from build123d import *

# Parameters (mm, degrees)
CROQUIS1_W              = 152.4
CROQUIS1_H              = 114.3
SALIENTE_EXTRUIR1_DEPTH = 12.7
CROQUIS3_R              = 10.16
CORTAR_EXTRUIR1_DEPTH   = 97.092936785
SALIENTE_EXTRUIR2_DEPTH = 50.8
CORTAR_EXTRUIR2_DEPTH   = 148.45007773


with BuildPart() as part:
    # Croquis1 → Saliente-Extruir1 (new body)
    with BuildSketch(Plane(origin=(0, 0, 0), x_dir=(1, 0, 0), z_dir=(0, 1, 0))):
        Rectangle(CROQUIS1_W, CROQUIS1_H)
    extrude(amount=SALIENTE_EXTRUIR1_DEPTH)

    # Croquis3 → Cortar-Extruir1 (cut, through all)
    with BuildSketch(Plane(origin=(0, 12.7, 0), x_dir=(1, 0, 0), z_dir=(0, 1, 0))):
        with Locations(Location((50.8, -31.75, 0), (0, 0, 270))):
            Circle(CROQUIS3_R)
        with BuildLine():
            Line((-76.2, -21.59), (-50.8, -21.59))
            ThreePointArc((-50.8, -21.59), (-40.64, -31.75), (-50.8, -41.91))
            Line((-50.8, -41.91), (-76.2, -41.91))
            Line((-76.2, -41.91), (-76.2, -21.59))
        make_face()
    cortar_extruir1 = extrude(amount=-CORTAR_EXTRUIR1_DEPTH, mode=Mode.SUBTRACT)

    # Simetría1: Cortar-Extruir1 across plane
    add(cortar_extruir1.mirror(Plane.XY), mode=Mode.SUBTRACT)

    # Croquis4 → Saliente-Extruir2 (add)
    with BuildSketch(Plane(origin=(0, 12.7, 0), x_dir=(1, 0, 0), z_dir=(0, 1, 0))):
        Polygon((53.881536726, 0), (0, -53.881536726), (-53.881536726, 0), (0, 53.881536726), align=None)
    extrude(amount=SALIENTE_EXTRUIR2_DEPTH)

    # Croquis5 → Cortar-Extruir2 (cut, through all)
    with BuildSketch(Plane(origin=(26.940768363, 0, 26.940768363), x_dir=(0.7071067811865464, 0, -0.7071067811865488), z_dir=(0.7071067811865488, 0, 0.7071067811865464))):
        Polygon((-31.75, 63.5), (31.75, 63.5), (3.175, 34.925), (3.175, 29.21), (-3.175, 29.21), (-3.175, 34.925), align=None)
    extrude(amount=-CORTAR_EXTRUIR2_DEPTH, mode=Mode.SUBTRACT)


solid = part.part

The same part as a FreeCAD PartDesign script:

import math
import FreeCAD as App
import Part
import Sketcher

V = App.Vector
Q = App.Units.Quantity

doc = App.newDocument("Part")
body = doc.addObject("PartDesign::Body", "Body")

# Sketch on XZ plane
sketch1 = body.newObject("Sketcher::SketchObject", "Sketch")
sketch1.AttachmentSupport = (doc.getObject("XZ_Plane"), [""])
sketch1.MapMode = "FlatFace"
sketch1.addGeometry([
    Part.LineSegment(V(-76.2, -57.15, 0), V(-76.2, 57.15, 0)),
    Part.LineSegment(V(-76.2, 57.15, 0), V(76.2, 57.15, 0)),
    Part.LineSegment(V(76.2, 57.15, 0), V(76.2, -57.15, 0)),
    Part.LineSegment(V(76.2, -57.15, 0), V(-76.2, -57.15, 0)),
], False)
sketch1.addConstraint([
    Sketcher.Constraint("Coincident", 0, 2, 1, 1),
    Sketcher.Constraint("Coincident", 1, 2, 2, 1),
    Sketcher.Constraint("Coincident", 2, 2, 3, 1),
    Sketcher.Constraint("Coincident", 3, 2, 0, 1),
    Sketcher.Constraint("Vertical", 0),
    Sketcher.Constraint("Horizontal", 1),
    Sketcher.Constraint("Vertical", 2),
    Sketcher.Constraint("Horizontal", 3),
    Sketcher.Constraint("Symmetric", 0, 2, 2, 2, -1, 1),
    Sketcher.Constraint("DistanceX", 1, 1, 1, 2, Q("6 in")),
    Sketcher.Constraint("DistanceY", 0, 1, 0, 2, Q("4.5 in")),
])
pad1 = body.newObject("PartDesign::Pad", "Pad")
pad1.Profile = sketch1
pad1.Length = Q("0.5 in")
pad1.Reversed = True

# Sketch on XZ plane
sketch2 = body.newObject("Sketcher::SketchObject", "Sketch001")
sketch2.AttachmentSupport = (doc.getObject("XZ_Plane"), [""])
sketch2.MapMode = "FlatFace"
sketch2.AttachmentOffset = App.Placement(V(0, 0, -0.5 * 25.4), App.Rotation())
sketch2.addGeometry([
    Part.Circle(V(50.8, 31.75, 0), V(0, 0, 1), 10.16),  # 0
    Part.LineSegment(V(-50.8, 21.59, 0), V(-76.2, 21.59, 0)),  # 1
    Part.LineSegment(V(-76.2, 21.59, 0), V(-76.2, 41.91, 0)),  # 2
    Part.LineSegment(V(-76.2, 41.91, 0), V(-50.8, 41.91, 0)),  # 3
    Part.ArcOfCircle(Part.Circle(V(-50.8, 31.75, 0), V(0, 0, 1), 10.16), math.radians(-90), math.radians(90)),  # 4
], False)
sketch2.addConstraint([
    Sketcher.Constraint("Coincident", 1, 2, 2, 1),
    Sketcher.Constraint("Coincident", 2, 2, 3, 1),
    Sketcher.Constraint("Tangent", 3, 2, 4, 2),
    Sketcher.Constraint("Tangent", 4, 1, 1, 1),
    Sketcher.Constraint("Horizontal", 1),
    Sketcher.Constraint("Vertical", 2),
    Sketcher.Constraint("Horizontal", 3),
    Sketcher.Constraint("Equal", 0, 4),
    Sketcher.Constraint("Symmetric", 0, 3, 4, 3, -2),
    Sketcher.Constraint("Diameter", 0, Q("0.8 in")),
    Sketcher.Constraint("DistanceX", 1, 2, 1, 1, Q("1 in")),
    Sketcher.Constraint("DistanceX", -1, 1, 0, 3, Q("2 in")),
    Sketcher.Constraint("DistanceY", -1, 1, 0, 3, Q("1.25 in")),
])
pocket1 = body.newObject("PartDesign::Pocket", "Pocket")
pocket1.Profile = sketch2
pocket1.Type = "ThroughAll"
pocket1.Reversed = True
doc.recompute()

mirrored = body.newObject("PartDesign::Mirrored", "Mirrored")
mirrored.Originals = [pocket1]
mirrored.MirrorPlane = (doc.getObject("XY_Plane"), [""])
body.Tip = mirrored

# Sketch on XZ plane
sketch3 = body.newObject("Sketcher::SketchObject", "Sketch002")
sketch3.AttachmentSupport = (doc.getObject("XZ_Plane"), [""])
sketch3.MapMode = "FlatFace"
sketch3.AttachmentOffset = App.Placement(V(0, 0, -0.5 * 25.4), App.Rotation())
sketch3.addGeometry([
    Part.LineSegment(V(0, 53.881537, 0), V(53.881537, 0, 0)),
    Part.LineSegment(V(53.881537, 0, 0), V(0, -53.881537, 0)),
    Part.LineSegment(V(0, -53.881537, 0), V(-53.881537, 0, 0)),
    Part.LineSegment(V(-53.881537, 0, 0), V(0, 53.881537, 0)),
], False)
sketch3.addConstraint([
    Sketcher.Constraint("Coincident", 0, 2, 1, 1),
    Sketcher.Constraint("Coincident", 1, 2, 2, 1),
    Sketcher.Constraint("Coincident", 2, 2, 3, 1),
    Sketcher.Constraint("Coincident", 3, 2, 0, 1),
    Sketcher.Constraint("Symmetric", 0, 2, 2, 2, -1, 1),
    Sketcher.Constraint("Symmetric", 1, 2, 3, 2, -1, 1),
    Sketcher.Constraint("PointOnObject", 0, 2, -1),
    Sketcher.Constraint("PointOnObject", 1, 2, -2),
    Sketcher.Constraint("Perpendicular", 0, 1),
    Sketcher.Constraint("Distance", 0, Q("3 in")),
])
pad2 = body.newObject("PartDesign::Pad", "Pad001")
pad2.Profile = sketch3
pad2.Length = Q("2 in")
pad2.Reversed = True

# Sketch on an angled plane
sketch4 = body.newObject("Sketcher::SketchObject", "Sketch003")
sketch4.Placement = App.Placement(V(26.940768, 0, 26.940768), App.Rotation(V(0.707106781, 0, -0.707106781), V(0, 0.999999999, 0), V(0.707106781, 0, 0.707106781), "ZXY"))
sketch4.addGeometry([
    Part.LineSegment(V(31.75, 63.5, 0), V(-31.75, 63.5, 0)),  # 0
    Part.LineSegment(V(-31.75, 63.5, 0), V(-3.175, 34.925, 0)),  # 1
    Part.LineSegment(V(-3.175, 34.925, 0), V(-3.175, 29.21, 0)),  # 2
    Part.LineSegment(V(-3.175, 29.21, 0), V(3.175, 29.21, 0)),  # 3
    Part.LineSegment(V(3.175, 29.21, 0), V(3.175, 34.925, 0)),  # 4
    Part.LineSegment(V(3.175, 34.925, 0), V(31.75, 63.5, 0)),  # 5
], False)
sketch4.addConstraint([
    Sketcher.Constraint("Coincident", 0, 2, 1, 1),
    Sketcher.Constraint("Coincident", 1, 2, 2, 1),
    Sketcher.Constraint("Coincident", 2, 2, 3, 1),
    Sketcher.Constraint("Coincident", 3, 2, 4, 1),
    Sketcher.Constraint("Coincident", 4, 2, 5, 1),
    Sketcher.Constraint("Coincident", 5, 2, 0, 1),
    Sketcher.Constraint("Horizontal", 0),
    Sketcher.Constraint("Vertical", 2),
    Sketcher.Constraint("Horizontal", 3),
    Sketcher.Constraint("Vertical", 4),
    Sketcher.Constraint("Symmetric", 1, 2, 4, 2, -2),
    Sketcher.Constraint("Perpendicular", 1, 5),
    Sketcher.Constraint("Equal", 1, 5),
    Sketcher.Constraint("DistanceX", 0, 2, 0, 1, Q("2.5 in")),
    Sketcher.Constraint("DistanceX", 3, 1, 3, 2, Q("0.25 in")),
    Sketcher.Constraint("DistanceY", -1, 1, 0, 2, Q("2.5 in")),
    Sketcher.Constraint("DistanceY", 2, 2, 2, 1, Q("0.225 in")),
])
pocket2 = body.newObject("PartDesign::Pocket", "Pocket001")
pocket2.Profile = sketch4
pocket2.Type = "ThroughAll"

doc.recompute()
